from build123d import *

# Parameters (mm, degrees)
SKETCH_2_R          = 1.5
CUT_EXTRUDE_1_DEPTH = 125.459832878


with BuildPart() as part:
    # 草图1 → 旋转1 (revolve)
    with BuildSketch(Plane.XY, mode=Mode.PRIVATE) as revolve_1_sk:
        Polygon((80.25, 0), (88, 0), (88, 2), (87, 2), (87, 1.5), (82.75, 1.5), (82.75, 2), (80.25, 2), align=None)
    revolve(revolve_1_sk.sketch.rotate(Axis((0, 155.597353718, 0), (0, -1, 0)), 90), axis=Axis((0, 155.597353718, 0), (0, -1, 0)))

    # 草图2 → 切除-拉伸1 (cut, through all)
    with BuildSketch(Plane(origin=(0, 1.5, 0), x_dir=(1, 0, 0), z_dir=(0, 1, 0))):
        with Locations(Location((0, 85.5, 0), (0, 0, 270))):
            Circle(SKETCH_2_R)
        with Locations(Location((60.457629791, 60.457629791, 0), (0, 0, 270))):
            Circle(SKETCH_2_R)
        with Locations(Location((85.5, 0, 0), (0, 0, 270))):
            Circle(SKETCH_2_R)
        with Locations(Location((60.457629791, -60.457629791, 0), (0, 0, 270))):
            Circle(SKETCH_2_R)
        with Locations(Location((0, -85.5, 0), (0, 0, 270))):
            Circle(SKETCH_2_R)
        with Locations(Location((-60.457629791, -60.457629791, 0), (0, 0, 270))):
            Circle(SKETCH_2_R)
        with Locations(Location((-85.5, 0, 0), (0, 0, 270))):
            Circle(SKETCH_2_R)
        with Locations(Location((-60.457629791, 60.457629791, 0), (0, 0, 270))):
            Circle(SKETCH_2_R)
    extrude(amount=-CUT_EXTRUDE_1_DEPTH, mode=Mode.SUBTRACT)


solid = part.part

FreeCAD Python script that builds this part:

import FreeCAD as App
import Part
import Sketcher
from FreeCAD import Vector
Q = App.Units.Quantity


def add_polygon(sketch, points):
    """Adds a closed chain of lines whose ends are joined by coincident constraints."""
    first, n = sketch.GeometryCount, len(points)
    for a, b in zip(points, points[1:] + points[:1]):
        sketch.addGeometry(Part.LineSegment(App.Vector(*a, 0), App.Vector(*b, 0)), False)
    for i in range(n):
        sketch.addConstraint(Sketcher.Constraint("Coincident", first + i, 2, first + (i + 1) % n, 1))

doc = App.newDocument("Part")
body = doc.addObject("PartDesign::Body", "Body")

sketch1 = body.newObject("Sketcher::SketchObject", "Sketch")
sketch1.AttachmentSupport = (doc.getObject("XY_Plane"), [""])
sketch1.MapMode = "FlatFace"
add_polygon(sketch1, [(80.2, 0), (88, 0), (88, 2), (87, 2), (87, 1.5), (82.8, 1.5), (82.8, 2), (80.2, 2)])
sketch1.addConstraint(Sketcher.Constraint("Horizontal", 0))
sketch1.addConstraint(Sketcher.Constraint("Vertical", 1))
sketch1.addConstraint(Sketcher.Constraint("Horizontal", 2))
sketch1.addConstraint(Sketcher.Constraint("Vertical", 3))
sketch1.addConstraint(Sketcher.Constraint("Horizontal", 4))
sketch1.addConstraint(Sketcher.Constraint("Vertical", 5))
sketch1.addConstraint(Sketcher.Constraint("Horizontal", 6))
sketch1.addConstraint(Sketcher.Constraint("Vertical", 7))
sketch1.addConstraint(Sketcher.Constraint("PointOnObject", 0, 2, -1))
sketch1.addConstraint(Sketcher.Constraint("Horizontal", 2, 2, 5, 2))
sketch1.addConstraint(Sketcher.Constraint("DistanceX", 2, 2, 2, 1, Q("1 mm")))
sketch1.addConstraint(Sketcher.Constraint("DistanceY", 1, 1, 1, 2, Q("2 mm")))
sketch1.addConstraint(Sketcher.Constraint("DistanceX", 6, 2, 6, 1, Q("2.5 mm")))
sketch1.addConstraint(Sketcher.Constraint("DistanceY", 3, 2, 3, 1, Q("0.5 mm")))
sketch1.addConstraint(Sketcher.Constraint("DistanceX", -1, 1, 0, 2, Q("88 mm")))
sketch1.addConstraint(Sketcher.Constraint("DistanceX", 0, 1, 0, 2, Q("7.75 mm")))
revolution = body.newObject("PartDesign::Revolution", "Revolution")
revolution.Profile = sketch1
revolution.ReferenceAxis = (sketch1, ["V_Axis"])
revolution.Angle = 360

sketch2 = body.newObject("Sketcher::SketchObject", "Sketch001")
sketch2.AttachmentSupport = (doc.getObject("XZ_Plane"), [""])
sketch2.MapMode = "FlatFace"
sketch2.AttachmentOffset = App.Placement(Vector(0, 0, -1.5), App.Rotation())
sketch2.addGeometry(Part.Circle(Vector(0, -85.5, 0), Vector(0, 0, 1), 1.5), False)
sketch2.addGeometry(Part.Circle(Vector(60.5, -60.5, 0), Vector(0, 0, 1), 1.5), False)
sketch2.addGeometry(Part.Circle(Vector(85.5, 0, 0), Vector(0, 0, 1), 1.5), False)
sketch2.addGeometry(Part.Circle(Vector(60.5, 60.5, 0), Vector(0, 0, 1), 1.5), False)
sketch2.addGeometry(Part.Circle(Vector(0, 85.5, 0), Vector(0, 0, 1), 1.5), False)
sketch2.addGeometry(Part.Circle(Vector(-60.5, 60.5, 0), Vector(0, 0, 1), 1.5), False)
sketch2.addGeometry(Part.Circle(Vector(-85.5, 0, 0), Vector(0, 0, 1), 1.5), False)
sketch2.addGeometry(Part.Circle(Vector(-60.5, -60.5, 0), Vector(0, 0, 1), 1.5), False)
sketch2.addConstraint(Sketcher.Constraint("Equal", 0, 1))
sketch2.addConstraint(Sketcher.Constraint("Equal", 1, 2))
sketch2.addConstraint(Sketcher.Constraint("Equal", 2, 3))
sketch2.addConstraint(Sketcher.Constraint("Equal", 3, 4))
sketch2.addConstraint(Sketcher.Constraint("Equal", 4, 5))
sketch2.addConstraint(Sketcher.Constraint("Equal", 5, 6))
sketch2.addConstraint(Sketcher.Constraint("Equal", 6, 7))
sketch2.addConstraint(Sketcher.Constraint("Symmetric", 0, 3, 4, 3, -1, 1))
sketch2.addConstraint(Sketcher.Constraint("Symmetric", 1, 3, 5, 3, -1, 1))
sketch2.addConstraint(Sketcher.Constraint("Symmetric", 2, 3, 6, 3, -1, 1))
sketch2.addConstraint(Sketcher.Constraint("Symmetric", 3, 3, 7, 3, -1, 1))
sketch2.addConstraint(Sketcher.Constraint("Symmetric", 3, 3, 5, 3, -2))
sketch2.addConstraint(Sketcher.Constraint("PointOnObject", 0, 3, -2))
sketch2.addConstraint(Sketcher.Constraint("PointOnObject", 2, 3, -1))
sketch2.addConstraint(Sketcher.Constraint("Diameter", 0, Q("3 mm")))
sketch2.addConstraint(Sketcher.Constraint("DistanceY", 0, 3, 4, 3, Q("171 mm")))
sketch2.addConstraint(Sketcher.Constraint("DistanceX", -1, 1, 2, 3, Q("85.5 mm")))
sketch2.addConstraint(Sketcher.Constraint("DistanceX", -1, 1, 1, 3, Q("60.45763 mm")))
sketch2.addConstraint(Sketcher.Constraint("DistanceY", 1, 3, -1, 1, Q("60.45763 mm")))
pocket1 = body.newObject("PartDesign::Pocket", "Pocket")
pocket1.Profile = sketch2
pocket1.Type = "ThroughAll"
pocket1.Reversed = True

doc.recompute()
